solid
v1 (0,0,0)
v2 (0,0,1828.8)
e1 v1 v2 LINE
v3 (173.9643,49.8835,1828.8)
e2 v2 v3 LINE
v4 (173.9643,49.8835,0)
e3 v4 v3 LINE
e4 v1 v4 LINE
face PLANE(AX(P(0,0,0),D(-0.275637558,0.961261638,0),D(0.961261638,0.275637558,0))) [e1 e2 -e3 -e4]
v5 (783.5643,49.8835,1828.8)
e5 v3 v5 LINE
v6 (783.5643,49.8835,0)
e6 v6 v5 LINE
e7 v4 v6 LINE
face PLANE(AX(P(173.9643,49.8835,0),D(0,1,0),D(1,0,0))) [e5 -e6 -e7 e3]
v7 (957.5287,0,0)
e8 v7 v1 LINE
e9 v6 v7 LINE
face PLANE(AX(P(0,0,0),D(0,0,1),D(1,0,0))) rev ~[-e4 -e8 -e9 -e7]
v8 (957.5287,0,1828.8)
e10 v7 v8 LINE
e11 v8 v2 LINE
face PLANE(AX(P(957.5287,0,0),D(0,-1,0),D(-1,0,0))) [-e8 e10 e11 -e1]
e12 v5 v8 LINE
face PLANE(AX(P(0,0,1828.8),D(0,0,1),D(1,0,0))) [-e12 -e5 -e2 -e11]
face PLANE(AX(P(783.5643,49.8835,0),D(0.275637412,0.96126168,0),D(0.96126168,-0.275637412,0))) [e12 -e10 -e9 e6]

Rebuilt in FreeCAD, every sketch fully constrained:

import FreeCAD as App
import Part
import Sketcher
Q = App.Units.Quantity


def add_polygon(sketch, points):
    """Adds a closed chain of lines whose ends are joined by coincident constraints."""
    first, n = sketch.GeometryCount, len(points)
    for a, b in zip(points, points[1:] + points[:1]):
        sketch.addGeometry(Part.LineSegment(App.Vector(*a, 0), App.Vector(*b, 0)), False)
    for i in range(n):
        sketch.addConstraint(Sketcher.Constraint("Coincident", first + i, 2, first + (i + 1) % n, 1))

doc = App.newDocument("Part")
body = doc.addObject("PartDesign::Body", "Body")

sketch1 = body.newObject("Sketcher::SketchObject", "Sketch")
sketch1.AttachmentSupport = (doc.getObject("XY_Plane"), [""])
sketch1.MapMode = "FlatFace"
add_polygon(sketch1, [(174, 50), (0, 0), (958, 0), (784, 50)])
sketch1.addConstraint([
    Sketcher.Constraint("Horizontal", 1),
    Sketcher.Constraint("Horizontal", 3),
    Sketcher.Constraint("Coincident", 0, 2, -1, 1),
    Sketcher.Constraint("Equal", 0, 2),
    Sketcher.Constraint("DistanceX", 3, 2, 3, 1, Q("24 in")),
    Sketcher.Constraint("Distance", 0, Q("7.125 in")),
    Sketcher.Constraint("Angle", 0, Q("-164 deg")),
])
pad1 = body.newObject("PartDesign::Pad", "Pad")
pad1.Profile = sketch1
pad1.Length = Q("72 in")

doc.recompute()
